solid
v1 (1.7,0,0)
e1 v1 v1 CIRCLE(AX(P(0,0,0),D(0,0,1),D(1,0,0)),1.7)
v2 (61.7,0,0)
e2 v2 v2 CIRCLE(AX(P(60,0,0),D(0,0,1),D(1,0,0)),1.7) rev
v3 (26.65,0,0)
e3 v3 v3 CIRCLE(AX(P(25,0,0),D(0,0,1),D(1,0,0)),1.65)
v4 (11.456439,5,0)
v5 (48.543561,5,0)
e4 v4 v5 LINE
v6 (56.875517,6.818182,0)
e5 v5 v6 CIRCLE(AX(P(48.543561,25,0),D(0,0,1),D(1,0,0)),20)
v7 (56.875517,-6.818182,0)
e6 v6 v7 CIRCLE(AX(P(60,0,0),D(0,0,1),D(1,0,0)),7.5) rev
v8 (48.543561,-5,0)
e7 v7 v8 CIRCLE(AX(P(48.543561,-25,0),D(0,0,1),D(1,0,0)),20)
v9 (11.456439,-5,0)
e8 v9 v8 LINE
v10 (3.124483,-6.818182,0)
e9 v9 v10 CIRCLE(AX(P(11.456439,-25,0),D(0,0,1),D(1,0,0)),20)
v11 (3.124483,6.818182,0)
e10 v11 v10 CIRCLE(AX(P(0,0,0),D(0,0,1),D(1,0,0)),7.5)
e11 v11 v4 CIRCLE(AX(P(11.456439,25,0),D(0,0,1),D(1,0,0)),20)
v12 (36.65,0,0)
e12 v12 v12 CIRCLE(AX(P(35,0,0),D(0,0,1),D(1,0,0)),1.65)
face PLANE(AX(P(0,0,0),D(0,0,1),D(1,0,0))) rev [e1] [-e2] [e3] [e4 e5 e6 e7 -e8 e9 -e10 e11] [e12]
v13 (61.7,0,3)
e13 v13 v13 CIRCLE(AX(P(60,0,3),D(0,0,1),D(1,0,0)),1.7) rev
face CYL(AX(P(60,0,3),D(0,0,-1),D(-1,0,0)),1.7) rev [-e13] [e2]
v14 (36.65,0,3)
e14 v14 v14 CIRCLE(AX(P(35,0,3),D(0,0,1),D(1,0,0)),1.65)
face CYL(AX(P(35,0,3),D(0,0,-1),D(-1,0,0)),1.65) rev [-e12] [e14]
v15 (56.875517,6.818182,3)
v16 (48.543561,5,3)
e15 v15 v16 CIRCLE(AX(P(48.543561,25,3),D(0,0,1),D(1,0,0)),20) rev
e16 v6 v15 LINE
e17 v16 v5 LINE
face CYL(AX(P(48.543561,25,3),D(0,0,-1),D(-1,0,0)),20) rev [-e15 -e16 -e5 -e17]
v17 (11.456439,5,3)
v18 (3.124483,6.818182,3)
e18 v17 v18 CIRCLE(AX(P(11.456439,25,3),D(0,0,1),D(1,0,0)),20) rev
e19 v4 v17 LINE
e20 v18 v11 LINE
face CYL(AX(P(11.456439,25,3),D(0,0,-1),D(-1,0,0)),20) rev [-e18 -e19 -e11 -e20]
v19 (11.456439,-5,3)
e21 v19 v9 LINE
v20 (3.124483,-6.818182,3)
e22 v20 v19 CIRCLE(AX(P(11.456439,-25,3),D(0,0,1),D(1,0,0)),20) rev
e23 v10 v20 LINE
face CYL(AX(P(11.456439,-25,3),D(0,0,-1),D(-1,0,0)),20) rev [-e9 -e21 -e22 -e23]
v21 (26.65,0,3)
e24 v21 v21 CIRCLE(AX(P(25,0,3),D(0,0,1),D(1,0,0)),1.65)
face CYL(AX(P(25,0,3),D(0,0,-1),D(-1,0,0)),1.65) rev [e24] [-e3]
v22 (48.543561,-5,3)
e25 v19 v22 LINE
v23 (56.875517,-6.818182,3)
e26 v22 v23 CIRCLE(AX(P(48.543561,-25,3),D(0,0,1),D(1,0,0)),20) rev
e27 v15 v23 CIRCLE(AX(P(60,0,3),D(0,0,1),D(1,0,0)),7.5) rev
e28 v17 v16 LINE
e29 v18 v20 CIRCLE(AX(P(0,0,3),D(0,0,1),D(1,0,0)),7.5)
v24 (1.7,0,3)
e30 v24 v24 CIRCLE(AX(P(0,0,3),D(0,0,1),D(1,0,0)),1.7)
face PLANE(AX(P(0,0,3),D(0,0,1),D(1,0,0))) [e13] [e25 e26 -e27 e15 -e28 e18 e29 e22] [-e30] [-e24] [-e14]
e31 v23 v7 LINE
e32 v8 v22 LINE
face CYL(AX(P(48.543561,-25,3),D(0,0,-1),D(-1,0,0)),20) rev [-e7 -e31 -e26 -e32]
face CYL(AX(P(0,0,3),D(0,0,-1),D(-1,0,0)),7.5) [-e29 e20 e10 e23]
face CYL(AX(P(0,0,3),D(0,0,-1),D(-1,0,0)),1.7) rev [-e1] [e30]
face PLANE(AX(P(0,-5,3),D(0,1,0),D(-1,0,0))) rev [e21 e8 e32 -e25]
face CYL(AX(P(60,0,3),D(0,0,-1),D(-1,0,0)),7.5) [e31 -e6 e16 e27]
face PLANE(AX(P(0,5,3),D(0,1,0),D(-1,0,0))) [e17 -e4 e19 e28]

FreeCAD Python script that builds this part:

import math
import FreeCAD as App
import Part
import Sketcher


def edges_at(feature, points):
    """Names of the edges that pass closest to the given points."""
    edges = feature.Shape.Edges
    near = lambda p: min(range(len(edges)), key=lambda i: edges[i].distToShape(Part.Vertex(*p))[0])
    return sorted({f"Edge{near(p) + 1}" for p in points})

doc = App.newDocument("Part")
body = doc.addObject("PartDesign::Body", "Body")

# Sketch on XY plane
sketch1 = doc.addObject("Sketcher::SketchObject", "Sketch")
body.addObject(sketch1)
sketch1.AttachmentSupport = (doc.XY_Plane, [""])
sketch1.MapMode = "FlatFace"
sketch1.addGeometry([
    Part.LineSegment(App.Vector(5.59017, -5, 0), App.Vector(54.40983, -5, 0)),  # 0
    Part.ArcOfCircle(Part.Circle(App.Vector(60, 0, 0), App.Vector(0, 0, 1), 7.5), math.radians(-138.189685), math.radians(138.189685)),  # 1
    Part.LineSegment(App.Vector(54.40983, 5, 0), App.Vector(5.59017, 5, 0)),  # 2
    Part.ArcOfCircle(Part.Circle(App.Vector(0, 0, 0), App.Vector(0, 0, 1), 7.5), math.radians(41.810315), math.radians(318.189685)),  # 3
    Part.Circle(App.Vector(0, 0, 0), App.Vector(0, 0, 1), 1.7),  # 4
    Part.Circle(App.Vector(25, 0, 0), App.Vector(0, 0, 1), 1.65),  # 5
    Part.Circle(App.Vector(35, 0, 0), App.Vector(0, 0, 1), 1.65),  # 6
    Part.Circle(App.Vector(60, 0, 0), App.Vector(0, 0, 1), 1.7),  # 7
], False)
sketch1.addConstraint([
    Sketcher.Constraint("Coincident", 0, 2, 1, 1),
    Sketcher.Constraint("Coincident", 1, 2, 2, 1),
    Sketcher.Constraint("Coincident", 2, 2, 3, 1),
    Sketcher.Constraint("Coincident", 3, 2, 0, 1),
    Sketcher.Constraint("Horizontal", 0),
    Sketcher.Constraint("Horizontal", 2),
    Sketcher.Constraint("Coincident", 3, 3, -1, 1),
    Sketcher.Constraint("Coincident", 4, 3, -1, 1),
    Sketcher.Constraint("Coincident", 7, 3, 1, 3),
    Sketcher.Constraint("Equal", 1, 3),
    Sketcher.Constraint("Equal", 5, 6),
    Sketcher.Constraint("Equal", 4, 7),
    Sketcher.Constraint("Symmetric", 0, 2, 1, 2, -1),
    Sketcher.Constraint("PointOnObject", 5, 3, -1),
    Sketcher.Constraint("PointOnObject", 6, 3, -1),
    Sketcher.Constraint("Diameter", 4, 3.4),
    Sketcher.Constraint("Diameter", 5, 3.3),
    Sketcher.Constraint("Radius", 1, 7.5),
    Sketcher.Constraint("DistanceX", -1, 1, 1, 3, 60.0),
    Sketcher.Constraint("DistanceX", -1, 1, 5, 3, 25.0),
    Sketcher.Constraint("DistanceX", -1, 1, 6, 3, 35.0),
    Sketcher.Constraint("DistanceY", 0, 2, -1, 1, 5.0),
])
pad1 = doc.addObject("PartDesign::Pad", "Pad")
body.addObject(pad1)
pad1.Profile = sketch1
pad1.Length = 3
doc.recompute()

fillet = doc.addObject("PartDesign::Fillet", "Fillet")
body.addObject(fillet)
fillet.Base = (pad1, edges_at(pad1, [
    (54.41, -5, 1.5),
    (5.59, -5, 1.5),
    (5.59, 5, 1.5),
    (54.41, 5, 1.5),
]))
fillet.Radius = 20

doc.recompute()
